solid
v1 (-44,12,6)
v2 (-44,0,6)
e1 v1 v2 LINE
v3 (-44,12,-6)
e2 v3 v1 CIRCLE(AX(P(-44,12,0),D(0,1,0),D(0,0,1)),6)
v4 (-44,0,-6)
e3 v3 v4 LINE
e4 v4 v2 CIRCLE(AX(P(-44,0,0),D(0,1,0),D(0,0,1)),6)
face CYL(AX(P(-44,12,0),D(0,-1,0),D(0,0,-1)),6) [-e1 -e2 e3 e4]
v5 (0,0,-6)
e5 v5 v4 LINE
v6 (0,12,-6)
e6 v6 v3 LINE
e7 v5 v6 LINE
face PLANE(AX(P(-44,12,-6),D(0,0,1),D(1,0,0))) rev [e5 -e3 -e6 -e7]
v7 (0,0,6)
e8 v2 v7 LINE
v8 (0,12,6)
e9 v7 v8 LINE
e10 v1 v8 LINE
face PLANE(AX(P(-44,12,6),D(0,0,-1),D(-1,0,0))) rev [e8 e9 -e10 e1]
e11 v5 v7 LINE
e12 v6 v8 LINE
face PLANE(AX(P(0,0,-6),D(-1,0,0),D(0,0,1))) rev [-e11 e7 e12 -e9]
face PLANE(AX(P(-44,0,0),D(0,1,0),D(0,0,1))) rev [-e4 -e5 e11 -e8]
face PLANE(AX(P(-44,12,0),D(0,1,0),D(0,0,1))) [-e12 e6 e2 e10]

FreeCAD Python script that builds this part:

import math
import FreeCAD as App
import Part
import Sketcher
Q = App.Units.Quantity

doc = App.newDocument("Part")
params = doc.addObject("Spreadsheet::Sheet", "Params")
for row, (alias, value) in enumerate([
    ("sketch1_radius", "6 mm"),
    ("sketch1_width", "88 mm"),
    ("pad1_length", "12 mm"),
    ("sketch2_width", "50 mm"),
    ("sketch2_height", "12 mm"),
], start=1):
    params.set(f"A{row}", alias)
    params.set(f"B{row}", "=" + value)
    params.setAlias(f"B{row}", alias)

body = doc.addObject("PartDesign::Body", "Body")

# Sketch on XZ plane
sketch1 = body.newObject("Sketcher::SketchObject", "Sketch")
sketch1.AttachmentSupport = (doc.getObject("XZ_Plane"), [""])
sketch1.MapMode = "FlatFace"
sketch1.addGeometry([
    Part.LineSegment(App.Vector(44, -6, 0), App.Vector(-44, -6, 0)),
    Part.ArcOfCircle(Part.Circle(App.Vector(-44, 0, 0), App.Vector(0, 0, 1), 6), math.radians(90), math.radians(270)),
    Part.LineSegment(App.Vector(-44, 6, 0), App.Vector(44, 6, 0)),
    Part.ArcOfCircle(Part.Circle(App.Vector(44, 0, 0), App.Vector(0, 0, 1), 6), math.radians(-90), math.radians(90)),
], False)
sketch1.addConstraint([
    Sketcher.Constraint("Tangent", 0, 2, 1, 2),
    Sketcher.Constraint("Tangent", 1, 1, 2, 1),
    Sketcher.Constraint("Tangent", 2, 2, 3, 2),
    Sketcher.Constraint("Tangent", 3, 1, 0, 1),
    Sketcher.Constraint("Horizontal", 0),
    Sketcher.Constraint("Horizontal", 2),
    Sketcher.Constraint("Symmetric", 1, 3, 3, 3, -1, 1),
    Sketcher.Constraint("Radius", 1, Q("6 mm")),
    Sketcher.Constraint("DistanceX", 0, 2, 0, 1, Q("88 mm")),
])
sketch1.setExpression("Constraints[7]", "Params.sketch1_radius")
sketch1.setExpression("Constraints[8]", "Params.sketch1_width")
pad1 = body.newObject("PartDesign::Pad", "Pad")
pad1.Profile = sketch1
pad1.setExpression("Length", "Params.pad1_length")
pad1.Reversed = True

# Sketch on XZ plane
sketch2 = body.newObject("Sketcher::SketchObject", "Sketch001")
sketch2.AttachmentSupport = (doc.getObject("XZ_Plane"), [""])
sketch2.MapMode = "FlatFace"
sketch2.AttachmentOffset = App.Placement(App.Vector(0, 0, -12), App.Rotation())
sketch2.addGeometry([
    Part.LineSegment(App.Vector(0, -6, 0), App.Vector(0, 6, 0)),
    Part.LineSegment(App.Vector(0, 6, 0), App.Vector(50, 6, 0)),
    Part.LineSegment(App.Vector(50, 6, 0), App.Vector(50, -6, 0)),
    Part.LineSegment(App.Vector(50, -6, 0), App.Vector(0, -6, 0)),
], False)
sketch2.addConstraint([
    Sketcher.Constraint("Coincident", 0, 2, 1, 1),
    Sketcher.Constraint("Coincident", 1, 2, 2, 1),
    Sketcher.Constraint("Coincident", 2, 2, 3, 1),
    Sketcher.Constraint("Coincident", 3, 2, 0, 1),
    Sketcher.Constraint("Vertical", 0),
    Sketcher.Constraint("Horizontal", 1),
    Sketcher.Constraint("Vertical", 2),
    Sketcher.Constraint("Horizontal", 3),
    Sketcher.Constraint("Symmetric", 0, 2, 3, 2, -1, 1),
    Sketcher.Constraint("DistanceX", 1, 1, 1, 2, Q("50 mm")),
    Sketcher.Constraint("DistanceY", 0, 1, 0, 2, Q("12 mm")),
])
sketch2.setExpression("Constraints[9]", "Params.sketch2_width")
sketch2.setExpression("Constraints[10]", "Params.sketch2_height")
pocket1 = body.newObject("PartDesign::Pocket", "Pocket")
pocket1.Profile = sketch2
pocket1.Type = "ThroughAll"
pocket1.Reversed = True

doc.recompute()
